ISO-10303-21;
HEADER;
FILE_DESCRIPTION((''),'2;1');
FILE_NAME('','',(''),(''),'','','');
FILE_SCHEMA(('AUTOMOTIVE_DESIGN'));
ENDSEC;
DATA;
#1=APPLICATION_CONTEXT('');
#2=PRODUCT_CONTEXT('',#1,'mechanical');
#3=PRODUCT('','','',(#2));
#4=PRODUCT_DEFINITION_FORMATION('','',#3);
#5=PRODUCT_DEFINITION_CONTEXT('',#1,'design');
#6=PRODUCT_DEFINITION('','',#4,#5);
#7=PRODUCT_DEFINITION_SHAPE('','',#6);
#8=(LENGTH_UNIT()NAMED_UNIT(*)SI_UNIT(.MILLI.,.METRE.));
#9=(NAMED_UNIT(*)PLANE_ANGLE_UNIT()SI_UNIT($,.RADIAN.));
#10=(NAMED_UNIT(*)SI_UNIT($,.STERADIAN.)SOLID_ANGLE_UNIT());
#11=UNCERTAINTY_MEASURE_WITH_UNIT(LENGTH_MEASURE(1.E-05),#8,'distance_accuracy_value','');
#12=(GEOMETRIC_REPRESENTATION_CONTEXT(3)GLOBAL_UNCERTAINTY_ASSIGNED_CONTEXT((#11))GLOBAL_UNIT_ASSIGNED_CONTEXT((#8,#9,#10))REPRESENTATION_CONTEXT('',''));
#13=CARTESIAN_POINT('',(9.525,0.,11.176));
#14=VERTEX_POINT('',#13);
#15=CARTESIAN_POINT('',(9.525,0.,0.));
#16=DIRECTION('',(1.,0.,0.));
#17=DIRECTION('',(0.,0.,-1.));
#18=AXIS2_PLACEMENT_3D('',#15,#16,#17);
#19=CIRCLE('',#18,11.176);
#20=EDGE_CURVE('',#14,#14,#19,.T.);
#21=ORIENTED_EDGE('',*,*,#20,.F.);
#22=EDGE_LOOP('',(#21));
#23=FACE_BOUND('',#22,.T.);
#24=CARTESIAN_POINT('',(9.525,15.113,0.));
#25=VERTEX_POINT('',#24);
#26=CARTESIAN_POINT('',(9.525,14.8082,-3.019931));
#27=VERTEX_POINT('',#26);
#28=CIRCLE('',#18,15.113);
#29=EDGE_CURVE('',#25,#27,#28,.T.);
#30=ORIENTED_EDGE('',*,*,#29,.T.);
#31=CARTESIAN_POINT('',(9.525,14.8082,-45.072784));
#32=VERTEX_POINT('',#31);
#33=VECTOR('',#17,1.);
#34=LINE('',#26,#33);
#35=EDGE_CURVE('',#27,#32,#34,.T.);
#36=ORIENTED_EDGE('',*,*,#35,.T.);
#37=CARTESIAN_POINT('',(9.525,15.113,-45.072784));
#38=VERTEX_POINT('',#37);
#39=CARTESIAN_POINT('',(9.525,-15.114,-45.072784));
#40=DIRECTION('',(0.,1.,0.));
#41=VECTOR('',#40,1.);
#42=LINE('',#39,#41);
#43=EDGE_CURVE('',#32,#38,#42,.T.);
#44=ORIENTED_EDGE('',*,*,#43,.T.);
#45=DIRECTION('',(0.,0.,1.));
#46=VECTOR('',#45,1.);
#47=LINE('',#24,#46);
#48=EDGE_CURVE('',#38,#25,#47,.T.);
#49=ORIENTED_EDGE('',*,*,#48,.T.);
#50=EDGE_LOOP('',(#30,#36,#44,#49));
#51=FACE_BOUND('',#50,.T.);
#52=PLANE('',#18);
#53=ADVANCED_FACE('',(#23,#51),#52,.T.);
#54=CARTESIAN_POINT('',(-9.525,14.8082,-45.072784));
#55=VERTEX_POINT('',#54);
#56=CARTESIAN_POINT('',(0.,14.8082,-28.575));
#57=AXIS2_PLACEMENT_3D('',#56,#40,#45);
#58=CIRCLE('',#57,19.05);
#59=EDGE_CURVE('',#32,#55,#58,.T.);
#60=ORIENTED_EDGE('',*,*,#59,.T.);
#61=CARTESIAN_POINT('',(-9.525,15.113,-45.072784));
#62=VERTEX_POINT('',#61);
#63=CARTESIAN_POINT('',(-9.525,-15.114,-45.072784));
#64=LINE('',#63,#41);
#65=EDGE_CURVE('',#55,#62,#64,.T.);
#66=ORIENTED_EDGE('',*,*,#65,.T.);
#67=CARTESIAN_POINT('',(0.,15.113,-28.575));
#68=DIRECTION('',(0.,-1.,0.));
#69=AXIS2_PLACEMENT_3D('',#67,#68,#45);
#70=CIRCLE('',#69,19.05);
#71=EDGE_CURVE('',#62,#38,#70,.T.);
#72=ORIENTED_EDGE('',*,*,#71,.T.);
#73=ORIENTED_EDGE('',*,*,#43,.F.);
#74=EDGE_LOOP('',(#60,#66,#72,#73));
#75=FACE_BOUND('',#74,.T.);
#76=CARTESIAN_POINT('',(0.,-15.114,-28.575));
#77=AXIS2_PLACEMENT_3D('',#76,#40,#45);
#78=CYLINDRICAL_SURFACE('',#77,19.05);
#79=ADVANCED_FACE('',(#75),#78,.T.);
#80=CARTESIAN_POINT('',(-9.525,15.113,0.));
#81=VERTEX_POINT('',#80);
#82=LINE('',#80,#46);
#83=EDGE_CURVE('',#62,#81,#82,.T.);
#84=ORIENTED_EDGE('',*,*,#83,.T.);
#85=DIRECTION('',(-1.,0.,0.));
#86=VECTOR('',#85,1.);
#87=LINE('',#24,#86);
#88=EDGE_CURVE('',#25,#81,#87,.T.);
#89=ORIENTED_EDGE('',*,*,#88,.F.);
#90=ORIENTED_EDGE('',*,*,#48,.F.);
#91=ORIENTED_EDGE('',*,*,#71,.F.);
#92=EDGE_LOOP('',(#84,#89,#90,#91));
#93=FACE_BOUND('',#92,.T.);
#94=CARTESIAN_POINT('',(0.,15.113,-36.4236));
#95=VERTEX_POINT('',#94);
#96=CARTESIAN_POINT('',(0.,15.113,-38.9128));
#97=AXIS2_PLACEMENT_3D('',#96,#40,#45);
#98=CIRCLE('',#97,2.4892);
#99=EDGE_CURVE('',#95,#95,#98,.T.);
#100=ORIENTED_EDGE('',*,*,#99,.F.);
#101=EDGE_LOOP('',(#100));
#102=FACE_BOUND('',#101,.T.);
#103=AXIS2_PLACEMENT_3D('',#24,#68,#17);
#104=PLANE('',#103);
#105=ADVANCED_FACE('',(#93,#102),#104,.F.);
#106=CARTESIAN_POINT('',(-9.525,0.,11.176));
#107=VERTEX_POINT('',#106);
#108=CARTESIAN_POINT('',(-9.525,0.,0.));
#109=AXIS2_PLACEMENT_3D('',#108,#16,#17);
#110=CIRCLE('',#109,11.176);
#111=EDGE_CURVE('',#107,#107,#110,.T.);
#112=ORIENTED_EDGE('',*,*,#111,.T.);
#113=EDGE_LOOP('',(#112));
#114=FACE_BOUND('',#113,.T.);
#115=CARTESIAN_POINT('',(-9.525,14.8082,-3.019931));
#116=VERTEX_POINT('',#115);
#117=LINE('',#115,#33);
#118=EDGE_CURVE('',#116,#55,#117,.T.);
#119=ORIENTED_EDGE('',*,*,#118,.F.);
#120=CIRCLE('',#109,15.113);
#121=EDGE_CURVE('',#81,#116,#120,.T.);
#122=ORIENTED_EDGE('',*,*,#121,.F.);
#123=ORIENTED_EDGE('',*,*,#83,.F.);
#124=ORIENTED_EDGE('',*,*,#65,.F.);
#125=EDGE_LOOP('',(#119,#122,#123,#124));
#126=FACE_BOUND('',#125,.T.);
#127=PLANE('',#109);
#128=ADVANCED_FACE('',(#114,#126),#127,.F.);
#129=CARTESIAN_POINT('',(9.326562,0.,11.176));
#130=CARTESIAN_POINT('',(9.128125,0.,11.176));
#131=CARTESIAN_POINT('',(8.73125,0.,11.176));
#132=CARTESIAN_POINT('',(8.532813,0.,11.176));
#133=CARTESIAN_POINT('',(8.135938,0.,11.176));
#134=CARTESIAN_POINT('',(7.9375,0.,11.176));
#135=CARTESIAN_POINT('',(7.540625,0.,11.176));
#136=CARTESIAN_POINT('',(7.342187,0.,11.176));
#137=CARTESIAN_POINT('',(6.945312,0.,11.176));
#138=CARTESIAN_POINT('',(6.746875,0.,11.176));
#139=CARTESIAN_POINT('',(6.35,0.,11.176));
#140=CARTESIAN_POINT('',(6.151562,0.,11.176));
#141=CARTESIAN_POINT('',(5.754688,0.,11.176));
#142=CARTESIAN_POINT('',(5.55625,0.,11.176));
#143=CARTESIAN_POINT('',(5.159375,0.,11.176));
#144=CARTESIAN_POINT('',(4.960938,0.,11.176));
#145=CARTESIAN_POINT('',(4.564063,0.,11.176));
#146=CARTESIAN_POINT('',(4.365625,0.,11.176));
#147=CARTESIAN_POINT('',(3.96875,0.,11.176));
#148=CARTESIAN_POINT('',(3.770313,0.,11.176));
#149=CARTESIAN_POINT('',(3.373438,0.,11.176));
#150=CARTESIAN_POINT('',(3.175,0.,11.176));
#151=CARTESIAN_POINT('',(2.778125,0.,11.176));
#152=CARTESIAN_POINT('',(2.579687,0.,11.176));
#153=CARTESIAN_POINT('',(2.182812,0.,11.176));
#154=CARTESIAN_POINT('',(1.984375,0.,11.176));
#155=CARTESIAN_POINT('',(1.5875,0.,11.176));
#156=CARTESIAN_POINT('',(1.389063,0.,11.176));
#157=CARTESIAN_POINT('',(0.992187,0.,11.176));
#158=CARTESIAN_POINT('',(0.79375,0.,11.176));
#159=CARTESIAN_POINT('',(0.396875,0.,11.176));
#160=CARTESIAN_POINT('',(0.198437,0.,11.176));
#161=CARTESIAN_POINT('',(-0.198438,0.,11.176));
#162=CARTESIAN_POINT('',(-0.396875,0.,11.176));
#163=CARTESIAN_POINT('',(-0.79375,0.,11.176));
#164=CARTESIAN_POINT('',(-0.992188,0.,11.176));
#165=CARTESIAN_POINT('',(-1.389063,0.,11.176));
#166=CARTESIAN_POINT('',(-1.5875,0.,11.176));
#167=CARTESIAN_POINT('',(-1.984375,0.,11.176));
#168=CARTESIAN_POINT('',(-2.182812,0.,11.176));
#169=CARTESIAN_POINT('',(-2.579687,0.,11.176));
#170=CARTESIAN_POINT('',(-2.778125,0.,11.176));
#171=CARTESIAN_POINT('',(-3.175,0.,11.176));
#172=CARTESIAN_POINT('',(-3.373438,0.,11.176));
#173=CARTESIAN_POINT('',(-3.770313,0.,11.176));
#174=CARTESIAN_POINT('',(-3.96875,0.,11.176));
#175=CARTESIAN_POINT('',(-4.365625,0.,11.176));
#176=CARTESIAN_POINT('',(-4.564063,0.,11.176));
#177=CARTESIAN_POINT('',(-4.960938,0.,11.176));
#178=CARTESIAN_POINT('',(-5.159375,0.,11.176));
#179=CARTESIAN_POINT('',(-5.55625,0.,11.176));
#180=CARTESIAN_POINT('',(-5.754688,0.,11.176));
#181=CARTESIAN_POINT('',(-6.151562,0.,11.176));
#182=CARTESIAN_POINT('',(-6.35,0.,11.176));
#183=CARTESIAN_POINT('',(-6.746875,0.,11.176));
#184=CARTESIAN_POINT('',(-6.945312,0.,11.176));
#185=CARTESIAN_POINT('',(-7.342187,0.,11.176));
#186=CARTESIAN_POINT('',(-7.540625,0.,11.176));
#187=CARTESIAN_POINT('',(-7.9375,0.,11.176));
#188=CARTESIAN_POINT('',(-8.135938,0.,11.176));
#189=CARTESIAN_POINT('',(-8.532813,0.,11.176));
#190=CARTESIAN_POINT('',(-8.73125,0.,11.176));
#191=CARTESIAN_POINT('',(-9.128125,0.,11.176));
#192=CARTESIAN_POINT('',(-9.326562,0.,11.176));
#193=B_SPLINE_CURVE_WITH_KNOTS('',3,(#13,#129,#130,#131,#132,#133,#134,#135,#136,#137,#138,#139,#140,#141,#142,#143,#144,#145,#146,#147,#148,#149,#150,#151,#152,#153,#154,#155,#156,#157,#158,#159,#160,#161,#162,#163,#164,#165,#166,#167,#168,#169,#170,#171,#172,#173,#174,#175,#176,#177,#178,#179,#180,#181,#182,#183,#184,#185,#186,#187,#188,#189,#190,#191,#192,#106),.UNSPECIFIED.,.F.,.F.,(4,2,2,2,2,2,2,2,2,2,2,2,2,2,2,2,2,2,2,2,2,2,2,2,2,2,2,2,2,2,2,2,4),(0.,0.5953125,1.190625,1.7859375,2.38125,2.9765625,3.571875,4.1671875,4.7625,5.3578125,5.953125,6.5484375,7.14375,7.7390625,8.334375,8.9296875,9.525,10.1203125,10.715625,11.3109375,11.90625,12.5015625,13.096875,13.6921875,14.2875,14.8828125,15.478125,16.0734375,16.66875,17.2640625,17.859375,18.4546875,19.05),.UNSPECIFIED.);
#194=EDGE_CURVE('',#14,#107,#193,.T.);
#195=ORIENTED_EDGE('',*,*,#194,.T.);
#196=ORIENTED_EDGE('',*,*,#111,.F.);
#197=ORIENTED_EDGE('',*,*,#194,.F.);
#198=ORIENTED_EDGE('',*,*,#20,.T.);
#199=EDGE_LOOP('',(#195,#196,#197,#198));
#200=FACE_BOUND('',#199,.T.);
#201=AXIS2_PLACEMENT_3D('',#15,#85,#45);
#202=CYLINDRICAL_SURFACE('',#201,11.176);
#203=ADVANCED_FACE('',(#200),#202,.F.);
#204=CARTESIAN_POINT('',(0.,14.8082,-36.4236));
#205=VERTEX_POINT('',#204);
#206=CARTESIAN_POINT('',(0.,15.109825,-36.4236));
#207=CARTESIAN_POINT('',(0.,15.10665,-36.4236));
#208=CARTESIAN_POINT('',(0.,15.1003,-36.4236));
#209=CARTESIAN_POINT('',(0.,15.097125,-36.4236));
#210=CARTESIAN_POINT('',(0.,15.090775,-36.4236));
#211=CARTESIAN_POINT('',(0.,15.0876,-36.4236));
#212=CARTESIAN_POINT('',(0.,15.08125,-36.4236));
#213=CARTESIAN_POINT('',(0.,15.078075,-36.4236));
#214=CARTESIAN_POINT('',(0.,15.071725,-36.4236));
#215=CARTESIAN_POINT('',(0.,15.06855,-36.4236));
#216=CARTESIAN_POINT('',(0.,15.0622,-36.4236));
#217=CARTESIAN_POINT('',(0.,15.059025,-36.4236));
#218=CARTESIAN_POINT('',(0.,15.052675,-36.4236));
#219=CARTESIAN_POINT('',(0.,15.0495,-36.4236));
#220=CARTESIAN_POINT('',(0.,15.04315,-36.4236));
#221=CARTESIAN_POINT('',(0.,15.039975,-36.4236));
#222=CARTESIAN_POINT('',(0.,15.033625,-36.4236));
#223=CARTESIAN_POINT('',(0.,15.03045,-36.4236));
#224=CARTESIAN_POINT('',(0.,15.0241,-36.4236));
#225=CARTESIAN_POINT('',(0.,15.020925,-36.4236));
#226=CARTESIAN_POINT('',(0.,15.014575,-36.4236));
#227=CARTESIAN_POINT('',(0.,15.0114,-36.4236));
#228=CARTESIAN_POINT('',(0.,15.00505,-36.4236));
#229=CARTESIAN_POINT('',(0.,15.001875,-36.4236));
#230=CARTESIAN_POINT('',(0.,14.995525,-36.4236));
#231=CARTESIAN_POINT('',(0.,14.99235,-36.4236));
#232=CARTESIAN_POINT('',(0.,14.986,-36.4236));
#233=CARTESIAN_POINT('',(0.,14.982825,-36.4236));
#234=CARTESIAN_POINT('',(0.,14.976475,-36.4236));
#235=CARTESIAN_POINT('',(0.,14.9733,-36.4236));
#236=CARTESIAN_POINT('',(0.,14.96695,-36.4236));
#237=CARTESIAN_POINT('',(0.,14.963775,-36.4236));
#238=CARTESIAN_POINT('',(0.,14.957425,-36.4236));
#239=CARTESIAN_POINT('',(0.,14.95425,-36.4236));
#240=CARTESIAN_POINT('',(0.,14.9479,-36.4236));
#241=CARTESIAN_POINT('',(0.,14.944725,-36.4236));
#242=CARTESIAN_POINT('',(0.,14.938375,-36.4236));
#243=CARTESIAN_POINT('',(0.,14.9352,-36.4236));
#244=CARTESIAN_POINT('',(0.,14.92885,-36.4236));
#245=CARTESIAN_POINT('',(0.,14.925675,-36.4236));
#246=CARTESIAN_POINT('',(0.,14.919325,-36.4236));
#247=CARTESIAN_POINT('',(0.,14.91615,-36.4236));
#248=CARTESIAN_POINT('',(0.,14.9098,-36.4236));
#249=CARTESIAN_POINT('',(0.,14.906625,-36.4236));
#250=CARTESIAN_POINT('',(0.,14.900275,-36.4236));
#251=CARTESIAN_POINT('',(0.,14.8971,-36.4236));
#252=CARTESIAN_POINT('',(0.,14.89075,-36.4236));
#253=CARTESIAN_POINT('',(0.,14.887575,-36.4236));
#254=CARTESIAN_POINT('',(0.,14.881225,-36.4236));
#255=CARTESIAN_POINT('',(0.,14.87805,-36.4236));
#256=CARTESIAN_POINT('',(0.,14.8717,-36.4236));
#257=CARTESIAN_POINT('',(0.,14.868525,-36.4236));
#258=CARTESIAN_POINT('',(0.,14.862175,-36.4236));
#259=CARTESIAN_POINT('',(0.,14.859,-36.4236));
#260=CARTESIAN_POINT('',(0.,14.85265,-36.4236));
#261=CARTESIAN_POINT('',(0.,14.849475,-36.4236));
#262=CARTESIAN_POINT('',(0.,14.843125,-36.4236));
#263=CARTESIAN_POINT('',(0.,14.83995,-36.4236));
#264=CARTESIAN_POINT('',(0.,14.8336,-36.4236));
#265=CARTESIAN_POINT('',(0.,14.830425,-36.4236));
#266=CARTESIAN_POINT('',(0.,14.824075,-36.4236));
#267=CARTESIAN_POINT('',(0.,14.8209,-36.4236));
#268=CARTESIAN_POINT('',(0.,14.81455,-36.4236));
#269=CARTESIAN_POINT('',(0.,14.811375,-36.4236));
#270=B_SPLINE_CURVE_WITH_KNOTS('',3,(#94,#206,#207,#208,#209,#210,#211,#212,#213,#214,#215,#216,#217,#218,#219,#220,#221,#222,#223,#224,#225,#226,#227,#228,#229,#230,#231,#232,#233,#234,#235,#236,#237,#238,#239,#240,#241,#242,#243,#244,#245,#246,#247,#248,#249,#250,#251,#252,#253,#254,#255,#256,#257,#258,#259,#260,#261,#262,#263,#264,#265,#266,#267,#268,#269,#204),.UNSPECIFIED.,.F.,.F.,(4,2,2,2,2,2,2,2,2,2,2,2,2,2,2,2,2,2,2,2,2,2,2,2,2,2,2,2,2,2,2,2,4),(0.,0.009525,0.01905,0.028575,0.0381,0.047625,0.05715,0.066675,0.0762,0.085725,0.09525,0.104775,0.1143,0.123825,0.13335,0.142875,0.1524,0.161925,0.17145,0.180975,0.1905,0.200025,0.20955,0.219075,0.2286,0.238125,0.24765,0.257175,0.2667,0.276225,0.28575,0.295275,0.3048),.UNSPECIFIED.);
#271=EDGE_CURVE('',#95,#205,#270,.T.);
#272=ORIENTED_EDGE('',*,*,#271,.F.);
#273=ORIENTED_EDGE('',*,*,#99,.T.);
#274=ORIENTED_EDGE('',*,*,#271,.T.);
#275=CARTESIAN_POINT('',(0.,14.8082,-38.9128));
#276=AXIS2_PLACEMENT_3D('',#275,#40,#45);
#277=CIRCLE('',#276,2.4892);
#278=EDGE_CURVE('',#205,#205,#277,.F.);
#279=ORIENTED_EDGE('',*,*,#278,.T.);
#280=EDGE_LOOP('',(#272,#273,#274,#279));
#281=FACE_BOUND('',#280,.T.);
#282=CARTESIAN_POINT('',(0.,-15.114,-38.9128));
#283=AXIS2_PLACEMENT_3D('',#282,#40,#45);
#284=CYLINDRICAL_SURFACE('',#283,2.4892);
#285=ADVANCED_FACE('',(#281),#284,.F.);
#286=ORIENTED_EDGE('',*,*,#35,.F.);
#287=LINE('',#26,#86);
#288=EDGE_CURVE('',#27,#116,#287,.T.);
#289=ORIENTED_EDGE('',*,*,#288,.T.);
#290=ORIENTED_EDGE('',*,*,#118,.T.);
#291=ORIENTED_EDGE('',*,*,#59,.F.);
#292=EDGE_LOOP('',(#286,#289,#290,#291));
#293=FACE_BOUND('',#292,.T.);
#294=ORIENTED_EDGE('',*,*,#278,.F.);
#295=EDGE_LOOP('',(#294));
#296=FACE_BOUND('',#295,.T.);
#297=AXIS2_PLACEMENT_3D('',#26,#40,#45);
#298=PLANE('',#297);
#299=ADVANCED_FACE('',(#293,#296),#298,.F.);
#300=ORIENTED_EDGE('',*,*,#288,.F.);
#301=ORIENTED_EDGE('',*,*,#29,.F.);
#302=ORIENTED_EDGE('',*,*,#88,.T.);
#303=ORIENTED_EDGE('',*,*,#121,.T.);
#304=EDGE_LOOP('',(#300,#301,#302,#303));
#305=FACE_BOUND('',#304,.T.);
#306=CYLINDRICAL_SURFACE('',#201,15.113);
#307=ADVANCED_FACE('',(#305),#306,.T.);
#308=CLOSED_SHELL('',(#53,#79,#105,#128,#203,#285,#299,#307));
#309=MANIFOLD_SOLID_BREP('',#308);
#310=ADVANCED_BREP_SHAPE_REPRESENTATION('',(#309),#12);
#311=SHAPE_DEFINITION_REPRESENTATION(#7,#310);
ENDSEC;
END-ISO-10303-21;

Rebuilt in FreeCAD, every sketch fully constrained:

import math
import FreeCAD as App
import Part
import Sketcher

V = App.Vector
Q = App.Units.Quantity

doc = App.newDocument("Part")
body = doc.addObject("PartDesign::Body", "Body")

sketch1 = body.newObject("Sketcher::SketchObject", "Sketch")
sketch1.AttachmentSupport = (doc.getObject("YZ_Plane"), [""])
sketch1.MapMode = "FlatFace"
sketch1.addGeometry([
    Part.LineSegment(V(15.11, -47.62, 0), V(15.11, 0, 0)),
    Part.ArcOfCircle(Part.Circle(V(0, 0, 0), V(0, 0, 1), 15.11), math.radians(0), math.radians(348)),
    Part.LineSegment(V(14.81, -3.02, 0), V(14.81, -47.62, 0)),
    Part.LineSegment(V(14.81, -47.62, 0), V(15.11, -47.62, 0)),
    Part.Circle(V(0, 0, 0), V(0, 0, 1), 11.18),
], False)
sketch1.addConstraint([
    Sketcher.Constraint("Tangent", 0, 2, 1, 1),
    Sketcher.Constraint("Coincident", 1, 2, 2, 1),
    Sketcher.Constraint("Coincident", 2, 2, 3, 1),
    Sketcher.Constraint("Coincident", 3, 2, 0, 1),
    Sketcher.Constraint("Vertical", 0),
    Sketcher.Constraint("Vertical", 2),
    Sketcher.Constraint("Horizontal", 3),
    Sketcher.Constraint("Coincident", 1, 3, -1, 1),
    Sketcher.Constraint("Coincident", 4, 3, -1, 1),
    Sketcher.Constraint("Diameter", 4, Q("0.88 in")),
    Sketcher.Constraint("Radius", 1, Q("0.595 in")),
    Sketcher.Constraint("DistanceX", 3, 1, 3, 2, Q("0.012 in")),
    Sketcher.Constraint("DistanceY", 0, 1, 0, 2, Q("1.875 in")),
])
pad1 = body.newObject("PartDesign::Pad", "Pad")
pad1.Profile = sketch1
pad1.Length = Q("0.75 in")
pad1.Midplane = True

sketch2 = body.newObject("Sketcher::SketchObject", "Sketch001")
sketch2.AttachmentSupport = (doc.getObject("XZ_Plane"), [""])
sketch2.MapMode = "FlatFace"
sketch2.AttachmentOffset = App.Placement(V(0, 0, -0.583 * 25.4), App.Rotation())
sketch2.addGeometry([
    Part.Circle(V(0, -38.9, 0), V(0, 0, 1), 2.5),
    Part.LineSegment(V(-9.5, -48.3, 0), V(-9.5, -45.1, 0)),
    Part.ArcOfCircle(Part.Circle(V(0, -28.6, 0), V(0, 0, 1), 19), math.radians(-120), math.radians(-60)),
    Part.LineSegment(V(9.5, -45.1, 0), V(9.5, -48.3, 0)),
    Part.LineSegment(V(9.5, -48.3, 0), V(-9.5, -48.3, 0)),
], False)
sketch2.addConstraint([
    Sketcher.Constraint("Coincident", 1, 2, 2, 1),
    Sketcher.Constraint("Coincident", 2, 2, 3, 1),
    Sketcher.Constraint("Coincident", 3, 2, 4, 1),
    Sketcher.Constraint("Coincident", 4, 2, 1, 1),
    Sketcher.Constraint("Vertical", 1),
    Sketcher.Constraint("Vertical", 3),
    Sketcher.Constraint("Horizontal", 4),
    Sketcher.Constraint("Symmetric", 1, 2, 2, 2, -2),
    Sketcher.Constraint("PointOnObject", 0, 3, -2),
    Sketcher.Constraint("Radius", 2, Q("0.75 in")),
    Sketcher.Constraint("Diameter", 0, Q("0.196 in")),
    Sketcher.Constraint("DistanceX", 4, 2, 4, 1, Q("0.75 in")),
    Sketcher.Constraint("DistanceY", 3, 2, -1, 1, Q("1.9 in")),
    Sketcher.Constraint("DistanceY", 0, 3, -1, 1, Q("1.532 in")),
    Sketcher.Constraint("DistanceY", 2, 3, -1, 1, Q("1.125 in")),
])
pocket1 = body.newObject("PartDesign::Pocket", "Pocket")
pocket1.Profile = sketch2
pocket1.Length = Q("0.012 in")

doc.recompute()
